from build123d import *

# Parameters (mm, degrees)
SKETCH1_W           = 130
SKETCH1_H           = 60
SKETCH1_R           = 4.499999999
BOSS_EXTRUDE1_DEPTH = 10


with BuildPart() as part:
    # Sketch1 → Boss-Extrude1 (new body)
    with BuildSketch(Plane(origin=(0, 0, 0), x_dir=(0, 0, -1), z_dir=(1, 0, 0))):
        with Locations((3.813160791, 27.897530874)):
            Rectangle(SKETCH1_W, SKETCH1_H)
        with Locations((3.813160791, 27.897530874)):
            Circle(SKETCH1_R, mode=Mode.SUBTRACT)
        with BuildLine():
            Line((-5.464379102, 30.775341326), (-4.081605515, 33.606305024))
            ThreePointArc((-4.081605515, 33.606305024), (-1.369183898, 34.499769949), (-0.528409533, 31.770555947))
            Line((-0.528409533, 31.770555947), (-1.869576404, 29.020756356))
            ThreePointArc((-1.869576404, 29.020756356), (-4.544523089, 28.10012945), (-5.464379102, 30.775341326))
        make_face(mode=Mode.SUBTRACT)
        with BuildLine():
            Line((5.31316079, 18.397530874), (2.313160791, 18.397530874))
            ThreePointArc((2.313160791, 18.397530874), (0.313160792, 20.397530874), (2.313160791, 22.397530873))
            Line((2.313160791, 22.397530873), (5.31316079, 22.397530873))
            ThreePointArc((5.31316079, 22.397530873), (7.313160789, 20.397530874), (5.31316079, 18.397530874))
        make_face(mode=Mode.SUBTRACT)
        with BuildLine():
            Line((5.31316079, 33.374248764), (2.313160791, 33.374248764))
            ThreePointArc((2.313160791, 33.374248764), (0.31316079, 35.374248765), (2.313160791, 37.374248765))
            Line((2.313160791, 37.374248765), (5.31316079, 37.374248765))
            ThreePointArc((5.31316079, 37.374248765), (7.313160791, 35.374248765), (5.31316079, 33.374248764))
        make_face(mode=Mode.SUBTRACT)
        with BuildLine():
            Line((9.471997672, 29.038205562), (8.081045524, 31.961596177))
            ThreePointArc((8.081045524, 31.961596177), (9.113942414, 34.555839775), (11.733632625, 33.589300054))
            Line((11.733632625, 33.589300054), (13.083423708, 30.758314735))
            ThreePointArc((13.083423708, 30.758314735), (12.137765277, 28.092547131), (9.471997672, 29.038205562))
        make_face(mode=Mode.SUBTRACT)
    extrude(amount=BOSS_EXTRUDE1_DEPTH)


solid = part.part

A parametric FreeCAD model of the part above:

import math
import FreeCAD as App
import Part
import Sketcher

V = App.Vector
Q = App.Units.Quantity


def add_polygon(sketch, points):
    """Adds a closed chain of lines whose ends are joined by coincident constraints."""
    first, n = sketch.GeometryCount, len(points)
    for a, b in zip(points, points[1:] + points[:1]):
        sketch.addGeometry(Part.LineSegment(App.Vector(*a, 0), App.Vector(*b, 0)), False)
    for i in range(n):
        sketch.addConstraint(Sketcher.Constraint("Coincident", first + i, 2, first + (i + 1) % n, 1))

doc = App.newDocument("Part")
body = doc.addObject("PartDesign::Body", "Body")

sketch1 = body.newObject("Sketcher::SketchObject", "Sketch")
sketch1.AttachmentSupport = (doc.getObject("YZ_Plane"), [""])
sketch1.MapMode = "FlatFace"
add_polygon(sketch1, [(57.897531, 61.186839), (-2.102469, 61.186839), (-2.102469, -68.813161), (57.897531, -68.813161)])
sketch1.addGeometry(Part.ArcOfCircle(Part.Circle(V(20.397531, -5.313161, 0), V(0, 0, 1), 2), math.radians(-180), math.radians(0)), False)
sketch1.addGeometry(Part.LineSegment(V(18.397531, -5.313161, 0), V(18.397531, -2.313161, 0)), False)
sketch1.addGeometry(Part.ArcOfCircle(Part.Circle(V(20.397531, -2.313161, 0), V(0, 0, 1), 2), math.radians(0), math.radians(180)), False)
sketch1.addGeometry(Part.LineSegment(V(22.397531, -2.313161, 0), V(22.397531, -5.313161, 0)), False)
sketch1.addGeometry(Part.ArcOfCircle(Part.Circle(V(29.897531, 3.667231, 0), V(0, 0, 1), 2.000074), math.radians(63.966978), math.radians(244)), False)
sketch1.addGeometry(Part.LineSegment(V(30.775341, 5.464379, 0), V(33.606305, 4.081606, 0)), False)
sketch1.addGeometry(Part.ArcOfCircle(Part.Circle(V(32.722839, 2.287231, 0), V(0, 0, 1), 2.000074), math.radians(-118.432554), math.radians(63.786524)), False)
sketch1.addGeometry(Part.LineSegment(V(31.770556, 0.52841, 0), V(29.020756, 1.869576, 0)), False)
sketch1.addGeometry(Part.Circle(V(27.897531, -3.813161, 0), V(0, 0, 1), 4.5), False)
sketch1.addGeometry(Part.ArcOfCircle(Part.Circle(V(29.89826, -11.277711, 0), V(0, 0, 1), 2.000073), math.radians(115.468291), math.radians(295.468291)), False)
sketch1.addGeometry(Part.LineSegment(V(29.038206, -9.471998, 0), V(31.961596, -8.081046, 0)), False)
sketch1.addGeometry(Part.ArcOfCircle(Part.Circle(V(32.728955, -9.928058, 0), V(0, 0, 1), 2.000074), math.radians(-64.522478), math.radians(112.560891)), False)
sketch1.addGeometry(Part.LineSegment(V(33.5893, -11.733633, 0), V(30.758315, -13.083424, 0)), False)
sketch1.addGeometry(Part.ArcOfCircle(Part.Circle(V(35.374249, -5.313161, 0), V(0, 0, 1), 2), math.radians(180), math.radians(360)), False)
sketch1.addGeometry(Part.LineSegment(V(33.374249, -5.313161, 0), V(33.374249, -2.313161, 0)), False)
sketch1.addGeometry(Part.ArcOfCircle(Part.Circle(V(35.374249, -2.313161, 0), V(0, 0, 1), 2), math.radians(0), math.radians(180)), False)
sketch1.addGeometry(Part.LineSegment(V(37.374249, -2.313161, 0), V(37.374249, -5.313161, 0)), False)
sketch1.addConstraint([
    Sketcher.Constraint("Tangent", 4, 1, 5, 1),
    Sketcher.Constraint("Tangent", 5, 2, 6, 2),
    Sketcher.Constraint("Tangent", 6, 1, 7, 1),
    Sketcher.Constraint("Tangent", 7, 2, 4, 2),
    Sketcher.Constraint("Tangent", 8, 1, 9, 1),
    Sketcher.Constraint("Coincident", 9, 2, 10, 2),
    Sketcher.Constraint("Coincident", 10, 1, 11, 1),
    Sketcher.Constraint("Tangent", 11, 2, 8, 2),
    Sketcher.Constraint("Coincident", 13, 1, 14, 1),
    Sketcher.Constraint("Coincident", 14, 2, 15, 2),
    Sketcher.Constraint("Coincident", 15, 1, 16, 1),
    Sketcher.Constraint("Coincident", 16, 2, 13, 2),
    Sketcher.Constraint("Tangent", 17, 1, 18, 1),
    Sketcher.Constraint("Tangent", 18, 2, 19, 2),
    Sketcher.Constraint("Tangent", 19, 1, 20, 1),
    Sketcher.Constraint("Tangent", 20, 2, 17, 2),
    Sketcher.Constraint("Horizontal", 0),
    Sketcher.Constraint("Vertical", 1),
    Sketcher.Constraint("Horizontal", 2),
    Sketcher.Constraint("Vertical", 3),
    Sketcher.Constraint("Vertical", 5),
    Sketcher.Constraint("Vertical", 7),
    Sketcher.Constraint("Vertical", 18),
    Sketcher.Constraint("Vertical", 20),
    Sketcher.Constraint("Equal", 8, 10),
    Sketcher.Constraint("Equal", 10, 13),
    Sketcher.Constraint("Equal", 13, 15),
    Sketcher.Constraint("Equal", 6, 17),
    Sketcher.Constraint("Horizontal", 4, 3, 17, 3),
    Sketcher.Constraint("Horizontal", 6, 3, 19, 3),
    Sketcher.Constraint("Diameter", 12, Q("9 mm")),
    Sketcher.Constraint("Radius", 4, Q("2 mm")),
    Sketcher.Constraint("DistanceX", 0, 2, 0, 1, Q("60 mm")),
    Sketcher.Constraint("DistanceY", 1, 2, 1, 1, Q("130 mm")),
    Sketcher.Constraint("DistanceY", 5, 1, 5, 2, Q("3 mm")),
    Sketcher.Constraint("Angle", 11, Q("154 deg")),
    Sketcher.Constraint("DistanceX", 12, 3, 8, 3, Q("2 mm")),
    Sketcher.Constraint("DistanceX", 0, 2, 8, 3, Q("32 mm")),
    Sketcher.Constraint("DistanceY", 12, 3, 0, 2, Q("65 mm")),
    Sketcher.Constraint("DistanceX", 6, 3, 8, 3, Q("9.5 mm")),
    Sketcher.Constraint("DistanceY", 4, 3, 12, 3, Q("1.5 mm")),
    Sketcher.Constraint("DistanceY", 10, 3, 8, 3, Q("1.38 mm")),
    Sketcher.Constraint("Radius", 8, Q("2.000074 mm")),
    Sketcher.Constraint("DistanceX", -1, 1, 15, 1, Q("33.5893 mm")),
    Sketcher.Constraint("DistanceX", 11, 2, 10, 1, Q("2.7498 mm")),
    Sketcher.Constraint("Distance", 9, Q("3.150622 mm")),
    Sketcher.Constraint("Distance", 14, Q("3.237431 mm")),
    Sketcher.Constraint("DistanceX", -1, 1, 4, 3, Q("20.397531 mm")),
    Sketcher.Constraint("DistanceY", 4, 3, -1, 1, Q("5.313161 mm")),
    Sketcher.Constraint("DistanceY", -1, 1, 8, 3, Q("3.667231 mm")),
    Sketcher.Constraint("DistanceX", -1, 1, 13, 3, Q("29.89826 mm")),
    Sketcher.Constraint("DistanceY", 13, 3, -1, 1, Q("11.277711 mm")),
    Sketcher.Constraint("DistanceY", 15, 3, -1, 1, Q("9.928058 mm")),
    Sketcher.Constraint("DistanceX", -1, 1, 17, 3, Q("35.374249 mm")),
    Sketcher.Constraint("DistanceX", 13, 1, 15, 3, Q("3.690749 mm")),
    Sketcher.Constraint("DistanceY", 15, 3, 13, 1, Q("0.45606 mm")),
    Sketcher.Constraint("DistanceY", 16, 2, 15, 1, Q("1.349791 mm")),
])
pad1 = body.newObject("PartDesign::Pad", "Pad")
pad1.Profile = sketch1
pad1.Length = 10

doc.recompute()
